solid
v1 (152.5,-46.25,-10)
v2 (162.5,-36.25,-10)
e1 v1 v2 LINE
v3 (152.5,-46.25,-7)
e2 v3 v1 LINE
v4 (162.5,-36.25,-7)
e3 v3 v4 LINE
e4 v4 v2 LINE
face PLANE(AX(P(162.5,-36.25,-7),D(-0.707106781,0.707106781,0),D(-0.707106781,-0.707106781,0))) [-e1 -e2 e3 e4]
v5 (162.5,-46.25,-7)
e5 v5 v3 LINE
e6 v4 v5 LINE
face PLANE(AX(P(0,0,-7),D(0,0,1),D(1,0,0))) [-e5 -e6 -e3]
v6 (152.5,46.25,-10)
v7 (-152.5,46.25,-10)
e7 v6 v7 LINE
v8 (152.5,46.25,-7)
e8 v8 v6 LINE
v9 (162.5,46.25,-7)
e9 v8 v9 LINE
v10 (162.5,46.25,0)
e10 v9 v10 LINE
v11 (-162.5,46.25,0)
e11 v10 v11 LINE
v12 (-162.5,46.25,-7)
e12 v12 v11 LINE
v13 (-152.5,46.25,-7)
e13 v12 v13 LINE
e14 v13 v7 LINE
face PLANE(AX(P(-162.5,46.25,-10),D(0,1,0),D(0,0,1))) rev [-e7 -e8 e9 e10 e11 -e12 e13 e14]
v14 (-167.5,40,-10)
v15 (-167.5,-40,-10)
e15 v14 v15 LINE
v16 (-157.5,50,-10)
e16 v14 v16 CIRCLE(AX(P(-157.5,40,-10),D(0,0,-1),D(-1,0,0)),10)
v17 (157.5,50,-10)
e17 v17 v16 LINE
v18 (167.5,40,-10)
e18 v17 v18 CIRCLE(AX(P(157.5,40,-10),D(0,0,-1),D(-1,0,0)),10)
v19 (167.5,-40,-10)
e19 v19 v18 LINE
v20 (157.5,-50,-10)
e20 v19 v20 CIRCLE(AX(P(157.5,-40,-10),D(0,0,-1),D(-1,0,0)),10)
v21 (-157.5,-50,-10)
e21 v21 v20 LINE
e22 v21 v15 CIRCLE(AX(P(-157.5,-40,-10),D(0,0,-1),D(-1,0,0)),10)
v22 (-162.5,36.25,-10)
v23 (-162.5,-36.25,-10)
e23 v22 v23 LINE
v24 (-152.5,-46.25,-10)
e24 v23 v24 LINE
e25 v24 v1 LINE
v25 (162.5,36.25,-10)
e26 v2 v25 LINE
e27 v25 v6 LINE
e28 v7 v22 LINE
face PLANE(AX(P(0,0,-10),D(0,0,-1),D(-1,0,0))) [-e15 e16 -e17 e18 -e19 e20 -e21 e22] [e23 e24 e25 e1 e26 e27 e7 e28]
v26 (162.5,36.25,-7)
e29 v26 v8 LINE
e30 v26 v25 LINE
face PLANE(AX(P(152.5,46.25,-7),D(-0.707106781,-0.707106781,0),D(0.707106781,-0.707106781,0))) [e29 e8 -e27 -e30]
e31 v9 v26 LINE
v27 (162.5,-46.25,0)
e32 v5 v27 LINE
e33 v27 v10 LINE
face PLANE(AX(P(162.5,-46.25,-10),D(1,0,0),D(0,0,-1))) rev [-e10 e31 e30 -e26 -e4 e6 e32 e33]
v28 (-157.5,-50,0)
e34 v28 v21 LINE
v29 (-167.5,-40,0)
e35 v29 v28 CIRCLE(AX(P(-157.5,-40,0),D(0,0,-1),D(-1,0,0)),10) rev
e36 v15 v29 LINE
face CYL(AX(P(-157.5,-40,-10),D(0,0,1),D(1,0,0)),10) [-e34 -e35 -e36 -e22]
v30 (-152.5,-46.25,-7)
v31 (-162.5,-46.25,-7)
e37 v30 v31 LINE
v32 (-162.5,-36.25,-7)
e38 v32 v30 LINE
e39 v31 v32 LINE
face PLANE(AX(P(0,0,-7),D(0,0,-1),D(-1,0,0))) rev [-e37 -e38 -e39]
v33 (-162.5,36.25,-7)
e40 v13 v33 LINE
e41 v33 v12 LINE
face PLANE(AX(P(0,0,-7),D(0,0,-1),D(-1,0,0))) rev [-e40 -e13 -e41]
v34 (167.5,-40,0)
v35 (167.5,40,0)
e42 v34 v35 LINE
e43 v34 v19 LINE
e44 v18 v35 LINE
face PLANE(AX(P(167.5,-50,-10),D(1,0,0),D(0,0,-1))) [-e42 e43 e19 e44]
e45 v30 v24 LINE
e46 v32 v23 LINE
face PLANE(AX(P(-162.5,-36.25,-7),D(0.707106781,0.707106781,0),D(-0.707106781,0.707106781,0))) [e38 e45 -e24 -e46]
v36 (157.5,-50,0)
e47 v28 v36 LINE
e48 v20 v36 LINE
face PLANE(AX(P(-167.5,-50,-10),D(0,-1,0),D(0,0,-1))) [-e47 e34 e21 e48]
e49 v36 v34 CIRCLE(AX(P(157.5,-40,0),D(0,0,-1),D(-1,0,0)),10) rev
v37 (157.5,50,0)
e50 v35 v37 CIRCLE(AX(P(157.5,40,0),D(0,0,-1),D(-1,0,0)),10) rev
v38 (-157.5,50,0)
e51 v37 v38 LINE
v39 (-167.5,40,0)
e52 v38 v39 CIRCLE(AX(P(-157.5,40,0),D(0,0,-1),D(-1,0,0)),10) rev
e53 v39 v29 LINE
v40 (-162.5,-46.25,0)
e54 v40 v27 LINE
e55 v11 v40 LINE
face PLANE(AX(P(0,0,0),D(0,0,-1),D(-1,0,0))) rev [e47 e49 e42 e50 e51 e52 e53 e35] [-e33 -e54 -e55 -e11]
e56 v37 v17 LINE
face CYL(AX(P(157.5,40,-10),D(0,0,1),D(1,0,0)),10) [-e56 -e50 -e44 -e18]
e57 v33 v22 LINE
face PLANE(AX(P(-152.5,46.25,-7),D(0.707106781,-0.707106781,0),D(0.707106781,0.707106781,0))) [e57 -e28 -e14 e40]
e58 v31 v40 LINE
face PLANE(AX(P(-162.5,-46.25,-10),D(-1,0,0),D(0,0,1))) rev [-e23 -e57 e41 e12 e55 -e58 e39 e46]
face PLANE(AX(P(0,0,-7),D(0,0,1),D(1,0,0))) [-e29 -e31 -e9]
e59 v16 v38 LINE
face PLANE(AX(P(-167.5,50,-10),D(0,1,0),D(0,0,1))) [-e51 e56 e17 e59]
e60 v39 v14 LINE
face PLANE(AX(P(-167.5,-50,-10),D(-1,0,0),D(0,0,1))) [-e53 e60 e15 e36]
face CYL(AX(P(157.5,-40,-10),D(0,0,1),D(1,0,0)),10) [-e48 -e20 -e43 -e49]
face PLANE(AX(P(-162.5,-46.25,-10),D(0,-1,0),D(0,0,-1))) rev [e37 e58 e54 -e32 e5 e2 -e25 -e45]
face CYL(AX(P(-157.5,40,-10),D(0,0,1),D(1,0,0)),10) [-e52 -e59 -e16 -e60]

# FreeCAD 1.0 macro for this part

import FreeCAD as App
import Part
import Sketcher


def edges_at(feature, points):
    """Names of the edges that pass closest to the given points."""
    edges = feature.Shape.Edges
    near = lambda p: min(range(len(edges)), key=lambda i: edges[i].distToShape(Part.Vertex(*p))[0])
    return sorted({f"Edge{near(p) + 1}" for p in points})

doc = App.newDocument("Part")
body = doc.addObject("PartDesign::Body", "Body")

sketch1 = doc.addObject("Sketcher::SketchObject", "Sketch")
body.addObject(sketch1)
sketch1.AttachmentSupport = (doc.XY_Plane, [""])
sketch1.MapMode = "FlatFace"
sketch1.addGeometry(Part.LineSegment(App.Vector(-167.5, 50, 0), App.Vector(-167.5, -50, 0)), False)
sketch1.addGeometry(Part.LineSegment(App.Vector(-167.5, -50, 0), App.Vector(167.5, -50, 0)), False)
sketch1.addGeometry(Part.LineSegment(App.Vector(167.5, -50, 0), App.Vector(167.5, 50, 0)), False)
sketch1.addGeometry(Part.LineSegment(App.Vector(167.5, 50, 0), App.Vector(-167.5, 50, 0)), False)
sketch1.addGeometry(Part.LineSegment(App.Vector(162.5, -46.25, 0), App.Vector(-162.5, -46.25, 0)), False)
sketch1.addGeometry(Part.LineSegment(App.Vector(-162.5, -46.25, 0), App.Vector(-162.5, 46.25, 0)), False)
sketch1.addGeometry(Part.LineSegment(App.Vector(-162.5, 46.25, 0), App.Vector(162.5, 46.25, 0)), False)
sketch1.addGeometry(Part.LineSegment(App.Vector(162.5, 46.25, 0), App.Vector(162.5, -46.25, 0)), False)
sketch1.addConstraint(Sketcher.Constraint("Coincident", 0, 2, 1, 1))
sketch1.addConstraint(Sketcher.Constraint("Coincident", 1, 2, 2, 1))
sketch1.addConstraint(Sketcher.Constraint("Coincident", 2, 2, 3, 1))
sketch1.addConstraint(Sketcher.Constraint("Coincident", 3, 2, 0, 1))
sketch1.addConstraint(Sketcher.Constraint("Coincident", 4, 2, 5, 1))
sketch1.addConstraint(Sketcher.Constraint("Coincident", 5, 2, 6, 1))
sketch1.addConstraint(Sketcher.Constraint("Coincident", 6, 2, 7, 1))
sketch1.addConstraint(Sketcher.Constraint("Coincident", 7, 2, 4, 1))
sketch1.addConstraint(Sketcher.Constraint("Vertical", 0))
sketch1.addConstraint(Sketcher.Constraint("Horizontal", 1))
sketch1.addConstraint(Sketcher.Constraint("Vertical", 2))
sketch1.addConstraint(Sketcher.Constraint("Horizontal", 3))
sketch1.addConstraint(Sketcher.Constraint("Horizontal", 4))
sketch1.addConstraint(Sketcher.Constraint("Vertical", 5))
sketch1.addConstraint(Sketcher.Constraint("Horizontal", 6))
sketch1.addConstraint(Sketcher.Constraint("Vertical", 7))
sketch1.addConstraint(Sketcher.Constraint("Symmetric", 0, 2, 2, 2, -1, 1))
sketch1.addConstraint(Sketcher.Constraint("Symmetric", 4, 2, 6, 2, -1, 1))
sketch1.addConstraint(Sketcher.Constraint("DistanceX", 1, 1, 1, 2, 335.0))
sketch1.addConstraint(Sketcher.Constraint("DistanceX", 4, 2, 4, 1, 325.0))
sketch1.addConstraint(Sketcher.Constraint("DistanceY", 0, 2, 0, 1, 100.0))
sketch1.addConstraint(Sketcher.Constraint("DistanceY", 5, 1, 5, 2, 92.5))
pad1 = doc.addObject("PartDesign::Pad", "Pad")
body.addObject(pad1)
pad1.Profile = sketch1
pad1.Length = 10
pad1.Reversed = True
doc.recompute()

fillet = doc.addObject("PartDesign::Fillet", "Fillet")
body.addObject(fillet)
fillet.Base = (pad1, edges_at(pad1, [
    (167.5, -50, -5),
    (-167.5, -50, -5),
    (-167.5, 50, -5),
    (167.5, 50, -5),
]))
fillet.Radius = 10

sketch2 = doc.addObject("Sketcher::SketchObject", "Sketch001")
body.addObject(sketch2)
sketch2.AttachmentSupport = (doc.XY_Plane, [""])
sketch2.MapMode = "FlatFace"
sketch2.AttachmentOffset = App.Placement(App.Vector(0, 0, -10), App.Rotation())
sketch2.addGeometry(Part.LineSegment(App.Vector(162.5, -36.25, 0), App.Vector(162.5, -46.25, 0)), False)
sketch2.addGeometry(Part.LineSegment(App.Vector(162.5, -46.25, 0), App.Vector(152.5, -46.25, 0)), False)
sketch2.addGeometry(Part.LineSegment(App.Vector(152.5, -46.25, 0), App.Vector(162.5, -36.25, 0)), False)
sketch2.addGeometry(Part.LineSegment(App.Vector(152.5, 46.25, 0), App.Vector(162.5, 46.25, 0)), False)
sketch2.addGeometry(Part.LineSegment(App.Vector(162.5, 46.25, 0), App.Vector(162.5, 36.25, 0)), False)
sketch2.addGeometry(Part.LineSegment(App.Vector(162.5, 36.25, 0), App.Vector(152.5, 46.25, 0)), False)
sketch2.addGeometry(Part.LineSegment(App.Vector(-162.5, 46.25, 0), App.Vector(-152.5, 46.25, 0)), False)
sketch2.addGeometry(Part.LineSegment(App.Vector(-152.5, 46.25, 0), App.Vector(-162.5, 36.25, 0)), False)
sketch2.addGeometry(Part.LineSegment(App.Vector(-162.5, 36.25, 0), App.Vector(-162.5, 46.25, 0)), False)
sketch2.addGeometry(Part.LineSegment(App.Vector(-162.5, -46.25, 0), App.Vector(-162.5, -36.25, 0)), False)
sketch2.addGeometry(Part.LineSegment(App.Vector(-162.5, -36.25, 0), App.Vector(-152.5, -46.25, 0)), False)
sketch2.addGeometry(Part.LineSegment(App.Vector(-152.5, -46.25, 0), App.Vector(-162.5, -46.25, 0)), False)
sketch2.addConstraint(Sketcher.Constraint("Coincident", 0, 2, 1, 1))
sketch2.addConstraint(Sketcher.Constraint("Coincident", 1, 2, 2, 1))
sketch2.addConstraint(Sketcher.Constraint("Coincident", 2, 2, 0, 1))
sketch2.addConstraint(Sketcher.Constraint("Coincident", 3, 2, 4, 1))
sketch2.addConstraint(Sketcher.Constraint("Coincident", 4, 2, 5, 1))
sketch2.addConstraint(Sketcher.Constraint("Coincident", 5, 2, 3, 1))
sketch2.addConstraint(Sketcher.Constraint("Coincident", 6, 2, 7, 1))
sketch2.addConstraint(Sketcher.Constraint("Coincident", 7, 2, 8, 1))
sketch2.addConstraint(Sketcher.Constraint("Coincident", 8, 2, 6, 1))
sketch2.addConstraint(Sketcher.Constraint("Coincident", 9, 2, 10, 1))
sketch2.addConstraint(Sketcher.Constraint("Coincident", 10, 2, 11, 1))
sketch2.addConstraint(Sketcher.Constraint("Coincident", 11, 2, 9, 1))
sketch2.addConstraint(Sketcher.Constraint("Vertical", 0))
sketch2.addConstraint(Sketcher.Constraint("Horizontal", 1))
sketch2.addConstraint(Sketcher.Constraint("Horizontal", 3))
sketch2.addConstraint(Sketcher.Constraint("Vertical", 4))
sketch2.addConstraint(Sketcher.Constraint("Horizontal", 6))
sketch2.addConstraint(Sketcher.Constraint("Vertical", 8))
sketch2.addConstraint(Sketcher.Constraint("Vertical", 9))
sketch2.addConstraint(Sketcher.Constraint("Horizontal", 11))
sketch2.addConstraint(Sketcher.Constraint("Symmetric", 1, 2, 6, 2, -1, 1))
sketch2.addConstraint(Sketcher.Constraint("Symmetric", 2, 2, 7, 2, -1, 1))
sketch2.addConstraint(Sketcher.Constraint("Symmetric", 4, 2, 9, 2, -1, 1))
sketch2.addConstraint(Sketcher.Constraint("Symmetric", 5, 2, 10, 2, -1, 1))
sketch2.addConstraint(Sketcher.Constraint("Symmetric", 5, 2, 6, 2, -2))
sketch2.addConstraint(Sketcher.Constraint("Symmetric", 4, 2, 7, 2, -2))
sketch2.addConstraint(Sketcher.Constraint("Perpendicular", 2, 5))
sketch2.addConstraint(Sketcher.Constraint("DistanceX", 1, 2, 1, 1, 10.0))
sketch2.addConstraint(Sketcher.Constraint("DistanceX", 6, 2, 5, 2, 305.0))
sketch2.addConstraint(Sketcher.Constraint("DistanceY", 2, 2, 3, 2, 82.5))
pad2 = doc.addObject("PartDesign::Pad", "Pad001")
body.addObject(pad2)
pad2.Profile = sketch2
pad2.Length = 3

doc.recompute()
